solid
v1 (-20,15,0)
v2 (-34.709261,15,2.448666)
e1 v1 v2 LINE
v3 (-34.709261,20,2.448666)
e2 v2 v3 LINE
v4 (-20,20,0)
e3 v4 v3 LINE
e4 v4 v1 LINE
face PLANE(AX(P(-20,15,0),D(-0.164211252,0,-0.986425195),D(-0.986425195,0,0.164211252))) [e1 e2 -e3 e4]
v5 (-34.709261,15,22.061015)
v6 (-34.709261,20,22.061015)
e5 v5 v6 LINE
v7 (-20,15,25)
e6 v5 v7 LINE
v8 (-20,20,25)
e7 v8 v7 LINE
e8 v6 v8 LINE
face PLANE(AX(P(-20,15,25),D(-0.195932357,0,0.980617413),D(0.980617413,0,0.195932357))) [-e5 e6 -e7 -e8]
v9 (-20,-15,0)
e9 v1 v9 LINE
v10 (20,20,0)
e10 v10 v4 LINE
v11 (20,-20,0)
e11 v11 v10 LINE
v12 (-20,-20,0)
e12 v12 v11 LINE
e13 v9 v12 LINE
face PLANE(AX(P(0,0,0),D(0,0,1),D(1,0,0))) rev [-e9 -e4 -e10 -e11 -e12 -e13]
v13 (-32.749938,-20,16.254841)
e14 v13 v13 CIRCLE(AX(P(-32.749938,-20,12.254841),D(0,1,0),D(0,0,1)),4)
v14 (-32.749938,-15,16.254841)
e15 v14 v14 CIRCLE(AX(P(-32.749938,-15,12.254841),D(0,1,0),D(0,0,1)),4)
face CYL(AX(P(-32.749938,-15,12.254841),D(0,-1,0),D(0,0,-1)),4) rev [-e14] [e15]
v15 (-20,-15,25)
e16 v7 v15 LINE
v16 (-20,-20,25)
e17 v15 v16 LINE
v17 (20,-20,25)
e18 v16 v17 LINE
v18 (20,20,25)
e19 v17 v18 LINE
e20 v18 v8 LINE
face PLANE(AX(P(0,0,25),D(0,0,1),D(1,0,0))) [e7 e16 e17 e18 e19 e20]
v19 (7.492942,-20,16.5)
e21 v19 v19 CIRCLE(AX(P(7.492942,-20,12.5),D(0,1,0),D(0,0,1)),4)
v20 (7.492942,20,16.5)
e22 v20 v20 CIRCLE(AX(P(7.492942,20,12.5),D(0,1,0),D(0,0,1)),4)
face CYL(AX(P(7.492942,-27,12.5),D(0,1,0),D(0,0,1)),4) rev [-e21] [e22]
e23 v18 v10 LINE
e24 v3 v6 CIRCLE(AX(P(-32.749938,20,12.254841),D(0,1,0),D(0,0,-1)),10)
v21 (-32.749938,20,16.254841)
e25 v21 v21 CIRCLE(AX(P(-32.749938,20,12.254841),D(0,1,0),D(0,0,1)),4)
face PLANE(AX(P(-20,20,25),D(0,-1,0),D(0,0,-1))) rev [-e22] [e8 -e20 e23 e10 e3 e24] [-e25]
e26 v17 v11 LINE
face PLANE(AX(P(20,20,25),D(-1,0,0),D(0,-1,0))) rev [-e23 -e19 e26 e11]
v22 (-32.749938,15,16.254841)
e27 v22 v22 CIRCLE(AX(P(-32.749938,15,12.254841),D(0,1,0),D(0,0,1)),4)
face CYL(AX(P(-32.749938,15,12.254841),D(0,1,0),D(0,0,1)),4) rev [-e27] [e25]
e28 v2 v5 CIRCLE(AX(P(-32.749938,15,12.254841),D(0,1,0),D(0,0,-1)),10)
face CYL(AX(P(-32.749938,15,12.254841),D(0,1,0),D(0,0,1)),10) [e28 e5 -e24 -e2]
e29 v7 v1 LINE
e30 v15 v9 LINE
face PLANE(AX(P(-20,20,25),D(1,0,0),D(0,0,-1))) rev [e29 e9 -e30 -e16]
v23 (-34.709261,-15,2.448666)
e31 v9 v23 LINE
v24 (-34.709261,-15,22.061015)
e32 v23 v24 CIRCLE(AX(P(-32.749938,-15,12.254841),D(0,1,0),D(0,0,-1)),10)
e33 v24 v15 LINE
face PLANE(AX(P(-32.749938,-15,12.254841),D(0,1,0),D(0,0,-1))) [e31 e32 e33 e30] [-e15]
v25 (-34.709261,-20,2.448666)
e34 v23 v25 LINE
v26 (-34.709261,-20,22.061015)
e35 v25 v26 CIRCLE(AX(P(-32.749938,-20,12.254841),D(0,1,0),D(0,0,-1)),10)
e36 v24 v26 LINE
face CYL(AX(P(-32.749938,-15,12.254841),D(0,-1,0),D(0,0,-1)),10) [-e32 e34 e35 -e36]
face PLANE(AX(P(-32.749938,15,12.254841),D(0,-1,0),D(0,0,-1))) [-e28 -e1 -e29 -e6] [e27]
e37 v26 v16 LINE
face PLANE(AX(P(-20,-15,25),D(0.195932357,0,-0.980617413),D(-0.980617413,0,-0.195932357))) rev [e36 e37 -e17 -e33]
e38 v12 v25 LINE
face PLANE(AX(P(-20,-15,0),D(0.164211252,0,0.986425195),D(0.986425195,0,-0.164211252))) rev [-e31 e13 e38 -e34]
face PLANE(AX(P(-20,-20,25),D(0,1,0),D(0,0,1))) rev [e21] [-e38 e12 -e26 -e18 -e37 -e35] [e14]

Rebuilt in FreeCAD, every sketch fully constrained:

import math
import FreeCAD as App
import Part
import Sketcher
from FreeCAD import Vector

doc = App.newDocument("Part")
body = doc.addObject("PartDesign::Body", "Body")

# Sketch on XY plane
sketch1 = body.newObject("Sketcher::SketchObject", "Sketch")
sketch1.AttachmentSupport = (doc.getObject("XY_Plane"), [""])
sketch1.MapMode = "FlatFace"
sketch1.addGeometry(Part.LineSegment(Vector(-20, 20, 0), Vector(-20, -20, 0)), False)
sketch1.addGeometry(Part.LineSegment(Vector(-20, -20, 0), Vector(20, -20, 0)), False)
sketch1.addGeometry(Part.LineSegment(Vector(20, -20, 0), Vector(20, 20, 0)), False)
sketch1.addGeometry(Part.LineSegment(Vector(20, 20, 0), Vector(-20, 20, 0)), False)
sketch1.addConstraint(Sketcher.Constraint("Coincident", 0, 2, 1, 1))
sketch1.addConstraint(Sketcher.Constraint("Coincident", 1, 2, 2, 1))
sketch1.addConstraint(Sketcher.Constraint("Coincident", 2, 2, 3, 1))
sketch1.addConstraint(Sketcher.Constraint("Coincident", 3, 2, 0, 1))
sketch1.addConstraint(Sketcher.Constraint("Vertical", 0))
sketch1.addConstraint(Sketcher.Constraint("Horizontal", 1))
sketch1.addConstraint(Sketcher.Constraint("Vertical", 2))
sketch1.addConstraint(Sketcher.Constraint("Horizontal", 3))
sketch1.addConstraint(Sketcher.Constraint("Symmetric", 0, 2, 2, 2, -1, 1))
sketch1.addConstraint(Sketcher.Constraint("Equal", 3, 0))
sketch1.addConstraint(Sketcher.Constraint("DistanceX", 1, 1, 1, 2, 40.0))
pad1 = body.newObject("PartDesign::Pad", "Pad")
pad1.Profile = sketch1
pad1.Length = 25

# Sketch on XZ plane
sketch2 = body.newObject("Sketcher::SketchObject", "Sketch001")
sketch2.AttachmentSupport = (doc.getObject("XZ_Plane"), [""])
sketch2.MapMode = "FlatFace"
sketch2.AttachmentOffset = App.Placement(Vector(0, 0, -20), App.Rotation())
sketch2.addGeometry(Part.Circle(Vector(7.5, 12.5, 0), Vector(0, 0, 1), 4), False)
sketch2.addConstraint(Sketcher.Constraint("Diameter", 0, 8.0))
sketch2.addConstraint(Sketcher.Constraint("DistanceY", -1, 1, 0, 3, 12.5))
sketch2.addConstraint(Sketcher.Constraint("DistanceX", -1, 1, 0, 3, 7.492942))
pocket1 = body.newObject("PartDesign::Pocket", "Pocket")
pocket1.Profile = sketch2
pocket1.Length = 47
pocket1.Reversed = True

# Sketch on XZ plane
sketch3 = body.newObject("Sketcher::SketchObject", "Sketch002")
sketch3.AttachmentSupport = (doc.getObject("XZ_Plane"), [""])
sketch3.MapMode = "FlatFace"
sketch3.AttachmentOffset = App.Placement(Vector(0, 0, -20), App.Rotation())
sketch3.addGeometry(Part.LineSegment(Vector(-34.7, 22.1, 0), Vector(-20, 25, 0)), False)
sketch3.addGeometry(Part.LineSegment(Vector(-20, 25, 0), Vector(-20, 0, 0)), False)
sketch3.addGeometry(Part.LineSegment(Vector(-20, 0, 0), Vector(-34.7, 2.4, 0)), False)
sketch3.addGeometry(Part.ArcOfCircle(Part.Circle(Vector(-32.7, 12.3, 0), Vector(0, 0, 1), 10), math.radians(101), math.radians(259)), False)
sketch3.addGeometry(Part.Circle(Vector(-32.7, 12.3, 0), Vector(0, 0, 1), 4), False)
sketch3.addConstraint(Sketcher.Constraint("Coincident", 0, 2, 1, 1))
sketch3.addConstraint(Sketcher.Constraint("Coincident", 1, 2, 2, 1))
sketch3.addConstraint(Sketcher.Constraint("Coincident", 2, 2, 3, 2))
sketch3.addConstraint(Sketcher.Constraint("Tangent", 3, 1, 0, 1))
sketch3.addConstraint(Sketcher.Constraint("Vertical", 1))
sketch3.addConstraint(Sketcher.Constraint("Coincident", 4, 3, 3, 3))
sketch3.addConstraint(Sketcher.Constraint("PointOnObject", 1, 2, -1))
sketch3.addConstraint(Sketcher.Constraint("Vertical", 2, 2, 3, 1))
sketch3.addConstraint(Sketcher.Constraint("Diameter", 4, 8.0))
sketch3.addConstraint(Sketcher.Constraint("Radius", 3, 10.0))
sketch3.addConstraint(Sketcher.Constraint("DistanceY", 1, 2, 1, 1, 25.0))
sketch3.addConstraint(Sketcher.Constraint("Distance", 0, 15.0))
sketch3.addConstraint(Sketcher.Constraint("DistanceX", 0, 2, -1, 1, 20.0))
sketch3.addConstraint(Sketcher.Constraint("DistanceY", -1, 1, 3, 3, 12.254841))
pad2 = body.newObject("PartDesign::Pad", "Pad001")
pad2.Profile = sketch3
pad2.Length = 5
doc.recompute()

mirrored = body.newObject("PartDesign::Mirrored", "Mirrored")
mirrored.Originals = [pad2]
mirrored.MirrorPlane = (doc.getObject("XZ_Plane"), [""])
body.Tip = mirrored

doc.recompute()
